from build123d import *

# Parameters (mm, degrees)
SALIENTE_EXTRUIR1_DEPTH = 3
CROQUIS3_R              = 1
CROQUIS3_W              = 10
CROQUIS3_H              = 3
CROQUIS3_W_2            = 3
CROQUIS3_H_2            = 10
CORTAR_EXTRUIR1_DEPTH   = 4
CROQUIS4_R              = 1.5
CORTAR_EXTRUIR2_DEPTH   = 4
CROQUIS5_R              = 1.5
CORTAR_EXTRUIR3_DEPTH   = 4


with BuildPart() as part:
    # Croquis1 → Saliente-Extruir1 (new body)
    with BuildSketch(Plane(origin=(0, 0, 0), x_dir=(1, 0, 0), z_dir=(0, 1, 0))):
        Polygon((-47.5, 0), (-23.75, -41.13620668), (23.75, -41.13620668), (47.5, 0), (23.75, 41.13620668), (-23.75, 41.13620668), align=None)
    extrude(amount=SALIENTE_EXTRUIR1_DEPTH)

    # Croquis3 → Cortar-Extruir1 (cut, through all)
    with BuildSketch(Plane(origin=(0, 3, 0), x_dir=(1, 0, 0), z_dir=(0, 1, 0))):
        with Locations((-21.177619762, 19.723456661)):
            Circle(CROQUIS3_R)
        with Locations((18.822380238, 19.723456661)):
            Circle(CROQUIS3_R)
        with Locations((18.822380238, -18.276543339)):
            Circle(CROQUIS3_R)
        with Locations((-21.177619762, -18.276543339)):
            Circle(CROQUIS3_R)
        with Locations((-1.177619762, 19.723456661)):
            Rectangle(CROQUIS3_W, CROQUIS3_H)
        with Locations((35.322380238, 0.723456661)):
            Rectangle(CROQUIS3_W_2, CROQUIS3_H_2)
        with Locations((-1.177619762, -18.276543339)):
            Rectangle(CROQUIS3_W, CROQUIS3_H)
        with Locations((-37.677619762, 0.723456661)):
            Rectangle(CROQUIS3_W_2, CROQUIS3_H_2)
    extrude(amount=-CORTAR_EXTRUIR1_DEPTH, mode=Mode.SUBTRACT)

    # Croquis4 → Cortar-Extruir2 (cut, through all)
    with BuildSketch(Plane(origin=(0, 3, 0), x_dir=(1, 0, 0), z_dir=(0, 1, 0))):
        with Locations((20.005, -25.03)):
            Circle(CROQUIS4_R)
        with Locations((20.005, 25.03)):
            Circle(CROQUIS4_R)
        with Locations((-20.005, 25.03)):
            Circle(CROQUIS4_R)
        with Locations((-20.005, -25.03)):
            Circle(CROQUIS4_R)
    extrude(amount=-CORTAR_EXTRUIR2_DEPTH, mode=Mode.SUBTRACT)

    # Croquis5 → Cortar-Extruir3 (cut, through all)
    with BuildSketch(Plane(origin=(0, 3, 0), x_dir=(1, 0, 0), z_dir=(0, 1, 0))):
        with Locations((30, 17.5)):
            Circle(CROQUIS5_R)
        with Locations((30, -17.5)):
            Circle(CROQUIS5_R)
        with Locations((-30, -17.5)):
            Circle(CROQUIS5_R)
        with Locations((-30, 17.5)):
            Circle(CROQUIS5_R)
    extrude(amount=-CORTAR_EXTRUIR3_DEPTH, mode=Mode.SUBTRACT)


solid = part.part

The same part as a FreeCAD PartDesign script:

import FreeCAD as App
import Part
import Sketcher

V = App.Vector
Q = App.Units.Quantity


def add_polygon(sketch, points):
    """Adds a closed chain of lines whose ends are joined by coincident constraints."""
    first, n = sketch.GeometryCount, len(points)
    for a, b in zip(points, points[1:] + points[:1]):
        sketch.addGeometry(Part.LineSegment(App.Vector(*a, 0), App.Vector(*b, 0)), False)
    for i in range(n):
        sketch.addConstraint(Sketcher.Constraint("Coincident", first + i, 2, first + (i + 1) % n, 1))

doc = App.newDocument("Part")
body = doc.addObject("PartDesign::Body", "Body")

# Sketch on XZ plane
sketch1 = body.newObject("Sketcher::SketchObject", "Sketch")
sketch1.AttachmentSupport = (doc.getObject("XZ_Plane"), [""])
sketch1.MapMode = "FlatFace"
add_polygon(sketch1, [(-47.5, 0), (-23.75, 41.136207), (23.75, 41.136207), (47.5, 0), (23.75, -41.136207), (-23.75, -41.136207)])  # lines 0-5
sketch1.addConstraint(Sketcher.Constraint("Horizontal", 1))
sketch1.addConstraint(Sketcher.Constraint("Horizontal", 4))
sketch1.addConstraint(Sketcher.Constraint("Symmetric", 0, 2, 3, 2, -1, 1))
sketch1.addConstraint(Sketcher.Constraint("Symmetric", 2, 2, 5, 2, -1, 1))
sketch1.addConstraint(Sketcher.Constraint("PointOnObject", 2, 2, -1))
sketch1.addConstraint(Sketcher.Constraint("Parallel", 2, 5))
sketch1.addConstraint(Sketcher.Constraint("Vertical", 1, 2, 3, 2))
sketch1.addConstraint(Sketcher.Constraint("Angle", 0, Q("60 deg")))
sketch1.addConstraint(Sketcher.Constraint("DistanceX", 1, 1, 1, 2, 47.5))
sketch1.addConstraint(Sketcher.Constraint("DistanceX", 5, 2, 2, 2, 95.0))
pad1 = body.newObject("PartDesign::Pad", "Pad")
pad1.Profile = sketch1
pad1.Length = 3
pad1.Reversed = True

# Sketch on XZ plane
sketch2 = body.newObject("Sketcher::SketchObject", "Sketch001")
sketch2.AttachmentSupport = (doc.getObject("XZ_Plane"), [""])
sketch2.MapMode = "FlatFace"
sketch2.AttachmentOffset = App.Placement(V(0, 0, -3), App.Rotation())
sketch2.addGeometry(Part.Circle(V(-21.17762, -19.723457, 0), V(0, 0, 1), 1), False)  # 0
sketch2.addGeometry(Part.Circle(V(18.82238, -19.723457, 0), V(0, 0, 1), 1), False)  # 1
sketch2.addGeometry(Part.Circle(V(18.82238, 18.276543, 0), V(0, 0, 1), 1), False)  # 2
sketch2.addGeometry(Part.Circle(V(-21.17762, 18.276543, 0), V(0, 0, 1), 1), False)  # 3
add_polygon(sketch2, [(-6.17762, -21.223457), (-6.17762, -18.223457), (3.82238, -18.223457), (3.82238, -21.223457)])  # lines 4-7
add_polygon(sketch2, [(33.82238, -5.723457), (33.82238, 4.276543), (36.82238, 4.276543), (36.82238, -5.723457)])  # lines 8-11
add_polygon(sketch2, [(-6.17762, 16.776543), (-6.17762, 19.776543), (3.82238, 19.776543), (3.82238, 16.776543)])  # lines 12-15
add_polygon(sketch2, [(-39.17762, -5.723457), (-39.17762, 4.276543), (-36.17762, 4.276543), (-36.17762, -5.723457)])  # lines 16-19
sketch2.addConstraint(Sketcher.Constraint("Vertical", 4))
sketch2.addConstraint(Sketcher.Constraint("Horizontal", 5))
sketch2.addConstraint(Sketcher.Constraint("Vertical", 6))
sketch2.addConstraint(Sketcher.Constraint("Horizontal", 7))
sketch2.addConstraint(Sketcher.Constraint("Vertical", 8))
sketch2.addConstraint(Sketcher.Constraint("Horizontal", 9))
sketch2.addConstraint(Sketcher.Constraint("Vertical", 10))
sketch2.addConstraint(Sketcher.Constraint("Horizontal", 11))
sketch2.addConstraint(Sketcher.Constraint("Vertical", 12))
sketch2.addConstraint(Sketcher.Constraint("Horizontal", 13))
sketch2.addConstraint(Sketcher.Constraint("Vertical", 14))
sketch2.addConstraint(Sketcher.Constraint("Horizontal", 15))
sketch2.addConstraint(Sketcher.Constraint("Vertical", 16))
sketch2.addConstraint(Sketcher.Constraint("Horizontal", 17))
sketch2.addConstraint(Sketcher.Constraint("Vertical", 18))
sketch2.addConstraint(Sketcher.Constraint("Horizontal", 19))
sketch2.addConstraint(Sketcher.Constraint("Equal", 0, 1))
sketch2.addConstraint(Sketcher.Constraint("Equal", 1, 2))
sketch2.addConstraint(Sketcher.Constraint("Equal", 2, 3))
sketch2.addConstraint(Sketcher.Constraint("Horizontal", 0, 3, 1, 3))
sketch2.addConstraint(Sketcher.Constraint("Horizontal", 2, 3, 3, 3))
sketch2.addConstraint(Sketcher.Constraint("Horizontal", 9, 2, 16, 2))
sketch2.addConstraint(Sketcher.Constraint("Horizontal", 11, 2, 18, 2))
sketch2.addConstraint(Sketcher.Constraint("Vertical", 1, 3, 2, 3))
sketch2.addConstraint(Sketcher.Constraint("Vertical", 0, 3, 3, 3))
sketch2.addConstraint(Sketcher.Constraint("Vertical", 7, 2, 12, 2))
sketch2.addConstraint(Sketcher.Constraint("Vertical", 6, 2, 13, 2))
sketch2.addConstraint(Sketcher.Constraint("Equal", 11, 17))
sketch2.addConstraint(Sketcher.Constraint("Equal", 19, 4))
sketch2.addConstraint(Sketcher.Constraint("Equal", 15, 8))
sketch2.addConstraint(Sketcher.Constraint("Equal", 6, 12))
sketch2.addConstraint(Sketcher.Constraint("Diameter", 0, 2.0))
sketch2.addConstraint(Sketcher.Constraint("DistanceX", 5, 1, 5, 2, 10.0))
sketch2.addConstraint(Sketcher.Constraint("DistanceX", 9, 1, 9, 2, 3.0))
sketch2.addConstraint(Sketcher.Constraint("DistanceX", 0, 3, 1, 3, 40.0))
sketch2.addConstraint(Sketcher.Constraint("DistanceY", 1, 3, 2, 3, 38.0))
sketch2.addConstraint(Sketcher.Constraint("DistanceX", 0, 3, 4, 2, 15.0))
sketch2.addConstraint(Sketcher.Constraint("DistanceX", 2, 3, 8, 2, 15.0))
sketch2.addConstraint(Sketcher.Constraint("DistanceY", 8, 2, 2, 3, 14.0))
sketch2.addConstraint(Sketcher.Constraint("DistanceY", 4, 2, 12, 2, 38.0))
sketch2.addConstraint(Sketcher.Constraint("DistanceX", 16, 2, 3, 3, 18.0))
sketch2.addConstraint(Sketcher.Constraint("DistanceY", 0, 3, 4, 2, 1.5))
sketch2.addConstraint(Sketcher.Constraint("DistanceX", 0, 3, -1, 1, 21.17762))
sketch2.addConstraint(Sketcher.Constraint("DistanceY", 0, 3, -1, 1, 19.723457))
pocket1 = body.newObject("PartDesign::Pocket", "Pocket")
pocket1.Profile = sketch2
pocket1.Type = "ThroughAll"
pocket1.Reversed = True

# Sketch on XZ plane
sketch3 = body.newObject("Sketcher::SketchObject", "Sketch002")
sketch3.AttachmentSupport = (doc.getObject("XZ_Plane"), [""])
sketch3.MapMode = "FlatFace"
sketch3.AttachmentOffset = App.Placement(V(0, 0, -3), App.Rotation())
sketch3.addGeometry(Part.Circle(V(20.005, 25.03, 0), V(0, 0, 1), 1.5), False)
sketch3.addGeometry(Part.Circle(V(20.005, -25.03, 0), V(0, 0, 1), 1.5), False)
sketch3.addGeometry(Part.Circle(V(-20.005, -25.03, 0), V(0, 0, 1), 1.5), False)
sketch3.addGeometry(Part.Circle(V(-20.005, 25.03, 0), V(0, 0, 1), 1.5), False)
sketch3.addConstraint(Sketcher.Constraint("Equal", 0, 1))
sketch3.addConstraint(Sketcher.Constraint("Equal", 1, 2))
sketch3.addConstraint(Sketcher.Constraint("Equal", 2, 3))
sketch3.addConstraint(Sketcher.Constraint("Symmetric", 0, 3, 2, 3, -1, 1))
sketch3.addConstraint(Sketcher.Constraint("Symmetric", 1, 3, 3, 3, -1, 1))
sketch3.addConstraint(Sketcher.Constraint("Symmetric", 1, 3, 2, 3, -2))
sketch3.addConstraint(Sketcher.Constraint("Diameter", 0, 3.0))
sketch3.addConstraint(Sketcher.Constraint("DistanceY", -1, 1, 0, 3, 25.03))
sketch3.addConstraint(Sketcher.Constraint("DistanceX", 2, 3, 1, 3, 40.01))
pocket2 = body.newObject("PartDesign::Pocket", "Pocket001")
pocket2.Profile = sketch3
pocket2.Type = "ThroughAll"
pocket2.Reversed = True

# Sketch on XZ plane
sketch4 = body.newObject("Sketcher::SketchObject", "Sketch003")
sketch4.AttachmentSupport = (doc.getObject("XZ_Plane"), [""])
sketch4.MapMode = "FlatFace"
sketch4.AttachmentOffset = App.Placement(V(0, 0, -3), App.Rotation())
sketch4.addGeometry(Part.Circle(V(30, -17.5, 0), V(0, 0, 1), 1.5), False)
sketch4.addGeometry(Part.Circle(V(30, 17.5, 0), V(0, 0, 1), 1.5), False)
sketch4.addGeometry(Part.Circle(V(-30, 17.5, 0), V(0, 0, 1), 1.5), False)
sketch4.addGeometry(Part.Circle(V(-30, -17.5, 0), V(0, 0, 1), 1.5), False)
sketch4.addConstraint(Sketcher.Constraint("Equal", 0, 1))
sketch4.addConstraint(Sketcher.Constraint("Equal", 1, 2))
sketch4.addConstraint(Sketcher.Constraint("Equal", 2, 3))
sketch4.addConstraint(Sketcher.Constraint("Symmetric", 0, 3, 2, 3, -1, 1))
sketch4.addConstraint(Sketcher.Constraint("Symmetric", 1, 3, 3, 3, -1, 1))
sketch4.addConstraint(Sketcher.Constraint("Symmetric", 1, 3, 2, 3, -2))
sketch4.addConstraint(Sketcher.Constraint("Diameter", 0, 3.0))
sketch4.addConstraint(Sketcher.Constraint("DistanceX", -1, 1, 0, 3, 30.0))
sketch4.addConstraint(Sketcher.Constraint("DistanceY", 0, 3, 1, 3, 35.0))
pocket3 = body.newObject("PartDesign::Pocket", "Pocket002")
pocket3.Profile = sketch4
pocket3.Type = "ThroughAll"
pocket3.Reversed = True

doc.recompute()
